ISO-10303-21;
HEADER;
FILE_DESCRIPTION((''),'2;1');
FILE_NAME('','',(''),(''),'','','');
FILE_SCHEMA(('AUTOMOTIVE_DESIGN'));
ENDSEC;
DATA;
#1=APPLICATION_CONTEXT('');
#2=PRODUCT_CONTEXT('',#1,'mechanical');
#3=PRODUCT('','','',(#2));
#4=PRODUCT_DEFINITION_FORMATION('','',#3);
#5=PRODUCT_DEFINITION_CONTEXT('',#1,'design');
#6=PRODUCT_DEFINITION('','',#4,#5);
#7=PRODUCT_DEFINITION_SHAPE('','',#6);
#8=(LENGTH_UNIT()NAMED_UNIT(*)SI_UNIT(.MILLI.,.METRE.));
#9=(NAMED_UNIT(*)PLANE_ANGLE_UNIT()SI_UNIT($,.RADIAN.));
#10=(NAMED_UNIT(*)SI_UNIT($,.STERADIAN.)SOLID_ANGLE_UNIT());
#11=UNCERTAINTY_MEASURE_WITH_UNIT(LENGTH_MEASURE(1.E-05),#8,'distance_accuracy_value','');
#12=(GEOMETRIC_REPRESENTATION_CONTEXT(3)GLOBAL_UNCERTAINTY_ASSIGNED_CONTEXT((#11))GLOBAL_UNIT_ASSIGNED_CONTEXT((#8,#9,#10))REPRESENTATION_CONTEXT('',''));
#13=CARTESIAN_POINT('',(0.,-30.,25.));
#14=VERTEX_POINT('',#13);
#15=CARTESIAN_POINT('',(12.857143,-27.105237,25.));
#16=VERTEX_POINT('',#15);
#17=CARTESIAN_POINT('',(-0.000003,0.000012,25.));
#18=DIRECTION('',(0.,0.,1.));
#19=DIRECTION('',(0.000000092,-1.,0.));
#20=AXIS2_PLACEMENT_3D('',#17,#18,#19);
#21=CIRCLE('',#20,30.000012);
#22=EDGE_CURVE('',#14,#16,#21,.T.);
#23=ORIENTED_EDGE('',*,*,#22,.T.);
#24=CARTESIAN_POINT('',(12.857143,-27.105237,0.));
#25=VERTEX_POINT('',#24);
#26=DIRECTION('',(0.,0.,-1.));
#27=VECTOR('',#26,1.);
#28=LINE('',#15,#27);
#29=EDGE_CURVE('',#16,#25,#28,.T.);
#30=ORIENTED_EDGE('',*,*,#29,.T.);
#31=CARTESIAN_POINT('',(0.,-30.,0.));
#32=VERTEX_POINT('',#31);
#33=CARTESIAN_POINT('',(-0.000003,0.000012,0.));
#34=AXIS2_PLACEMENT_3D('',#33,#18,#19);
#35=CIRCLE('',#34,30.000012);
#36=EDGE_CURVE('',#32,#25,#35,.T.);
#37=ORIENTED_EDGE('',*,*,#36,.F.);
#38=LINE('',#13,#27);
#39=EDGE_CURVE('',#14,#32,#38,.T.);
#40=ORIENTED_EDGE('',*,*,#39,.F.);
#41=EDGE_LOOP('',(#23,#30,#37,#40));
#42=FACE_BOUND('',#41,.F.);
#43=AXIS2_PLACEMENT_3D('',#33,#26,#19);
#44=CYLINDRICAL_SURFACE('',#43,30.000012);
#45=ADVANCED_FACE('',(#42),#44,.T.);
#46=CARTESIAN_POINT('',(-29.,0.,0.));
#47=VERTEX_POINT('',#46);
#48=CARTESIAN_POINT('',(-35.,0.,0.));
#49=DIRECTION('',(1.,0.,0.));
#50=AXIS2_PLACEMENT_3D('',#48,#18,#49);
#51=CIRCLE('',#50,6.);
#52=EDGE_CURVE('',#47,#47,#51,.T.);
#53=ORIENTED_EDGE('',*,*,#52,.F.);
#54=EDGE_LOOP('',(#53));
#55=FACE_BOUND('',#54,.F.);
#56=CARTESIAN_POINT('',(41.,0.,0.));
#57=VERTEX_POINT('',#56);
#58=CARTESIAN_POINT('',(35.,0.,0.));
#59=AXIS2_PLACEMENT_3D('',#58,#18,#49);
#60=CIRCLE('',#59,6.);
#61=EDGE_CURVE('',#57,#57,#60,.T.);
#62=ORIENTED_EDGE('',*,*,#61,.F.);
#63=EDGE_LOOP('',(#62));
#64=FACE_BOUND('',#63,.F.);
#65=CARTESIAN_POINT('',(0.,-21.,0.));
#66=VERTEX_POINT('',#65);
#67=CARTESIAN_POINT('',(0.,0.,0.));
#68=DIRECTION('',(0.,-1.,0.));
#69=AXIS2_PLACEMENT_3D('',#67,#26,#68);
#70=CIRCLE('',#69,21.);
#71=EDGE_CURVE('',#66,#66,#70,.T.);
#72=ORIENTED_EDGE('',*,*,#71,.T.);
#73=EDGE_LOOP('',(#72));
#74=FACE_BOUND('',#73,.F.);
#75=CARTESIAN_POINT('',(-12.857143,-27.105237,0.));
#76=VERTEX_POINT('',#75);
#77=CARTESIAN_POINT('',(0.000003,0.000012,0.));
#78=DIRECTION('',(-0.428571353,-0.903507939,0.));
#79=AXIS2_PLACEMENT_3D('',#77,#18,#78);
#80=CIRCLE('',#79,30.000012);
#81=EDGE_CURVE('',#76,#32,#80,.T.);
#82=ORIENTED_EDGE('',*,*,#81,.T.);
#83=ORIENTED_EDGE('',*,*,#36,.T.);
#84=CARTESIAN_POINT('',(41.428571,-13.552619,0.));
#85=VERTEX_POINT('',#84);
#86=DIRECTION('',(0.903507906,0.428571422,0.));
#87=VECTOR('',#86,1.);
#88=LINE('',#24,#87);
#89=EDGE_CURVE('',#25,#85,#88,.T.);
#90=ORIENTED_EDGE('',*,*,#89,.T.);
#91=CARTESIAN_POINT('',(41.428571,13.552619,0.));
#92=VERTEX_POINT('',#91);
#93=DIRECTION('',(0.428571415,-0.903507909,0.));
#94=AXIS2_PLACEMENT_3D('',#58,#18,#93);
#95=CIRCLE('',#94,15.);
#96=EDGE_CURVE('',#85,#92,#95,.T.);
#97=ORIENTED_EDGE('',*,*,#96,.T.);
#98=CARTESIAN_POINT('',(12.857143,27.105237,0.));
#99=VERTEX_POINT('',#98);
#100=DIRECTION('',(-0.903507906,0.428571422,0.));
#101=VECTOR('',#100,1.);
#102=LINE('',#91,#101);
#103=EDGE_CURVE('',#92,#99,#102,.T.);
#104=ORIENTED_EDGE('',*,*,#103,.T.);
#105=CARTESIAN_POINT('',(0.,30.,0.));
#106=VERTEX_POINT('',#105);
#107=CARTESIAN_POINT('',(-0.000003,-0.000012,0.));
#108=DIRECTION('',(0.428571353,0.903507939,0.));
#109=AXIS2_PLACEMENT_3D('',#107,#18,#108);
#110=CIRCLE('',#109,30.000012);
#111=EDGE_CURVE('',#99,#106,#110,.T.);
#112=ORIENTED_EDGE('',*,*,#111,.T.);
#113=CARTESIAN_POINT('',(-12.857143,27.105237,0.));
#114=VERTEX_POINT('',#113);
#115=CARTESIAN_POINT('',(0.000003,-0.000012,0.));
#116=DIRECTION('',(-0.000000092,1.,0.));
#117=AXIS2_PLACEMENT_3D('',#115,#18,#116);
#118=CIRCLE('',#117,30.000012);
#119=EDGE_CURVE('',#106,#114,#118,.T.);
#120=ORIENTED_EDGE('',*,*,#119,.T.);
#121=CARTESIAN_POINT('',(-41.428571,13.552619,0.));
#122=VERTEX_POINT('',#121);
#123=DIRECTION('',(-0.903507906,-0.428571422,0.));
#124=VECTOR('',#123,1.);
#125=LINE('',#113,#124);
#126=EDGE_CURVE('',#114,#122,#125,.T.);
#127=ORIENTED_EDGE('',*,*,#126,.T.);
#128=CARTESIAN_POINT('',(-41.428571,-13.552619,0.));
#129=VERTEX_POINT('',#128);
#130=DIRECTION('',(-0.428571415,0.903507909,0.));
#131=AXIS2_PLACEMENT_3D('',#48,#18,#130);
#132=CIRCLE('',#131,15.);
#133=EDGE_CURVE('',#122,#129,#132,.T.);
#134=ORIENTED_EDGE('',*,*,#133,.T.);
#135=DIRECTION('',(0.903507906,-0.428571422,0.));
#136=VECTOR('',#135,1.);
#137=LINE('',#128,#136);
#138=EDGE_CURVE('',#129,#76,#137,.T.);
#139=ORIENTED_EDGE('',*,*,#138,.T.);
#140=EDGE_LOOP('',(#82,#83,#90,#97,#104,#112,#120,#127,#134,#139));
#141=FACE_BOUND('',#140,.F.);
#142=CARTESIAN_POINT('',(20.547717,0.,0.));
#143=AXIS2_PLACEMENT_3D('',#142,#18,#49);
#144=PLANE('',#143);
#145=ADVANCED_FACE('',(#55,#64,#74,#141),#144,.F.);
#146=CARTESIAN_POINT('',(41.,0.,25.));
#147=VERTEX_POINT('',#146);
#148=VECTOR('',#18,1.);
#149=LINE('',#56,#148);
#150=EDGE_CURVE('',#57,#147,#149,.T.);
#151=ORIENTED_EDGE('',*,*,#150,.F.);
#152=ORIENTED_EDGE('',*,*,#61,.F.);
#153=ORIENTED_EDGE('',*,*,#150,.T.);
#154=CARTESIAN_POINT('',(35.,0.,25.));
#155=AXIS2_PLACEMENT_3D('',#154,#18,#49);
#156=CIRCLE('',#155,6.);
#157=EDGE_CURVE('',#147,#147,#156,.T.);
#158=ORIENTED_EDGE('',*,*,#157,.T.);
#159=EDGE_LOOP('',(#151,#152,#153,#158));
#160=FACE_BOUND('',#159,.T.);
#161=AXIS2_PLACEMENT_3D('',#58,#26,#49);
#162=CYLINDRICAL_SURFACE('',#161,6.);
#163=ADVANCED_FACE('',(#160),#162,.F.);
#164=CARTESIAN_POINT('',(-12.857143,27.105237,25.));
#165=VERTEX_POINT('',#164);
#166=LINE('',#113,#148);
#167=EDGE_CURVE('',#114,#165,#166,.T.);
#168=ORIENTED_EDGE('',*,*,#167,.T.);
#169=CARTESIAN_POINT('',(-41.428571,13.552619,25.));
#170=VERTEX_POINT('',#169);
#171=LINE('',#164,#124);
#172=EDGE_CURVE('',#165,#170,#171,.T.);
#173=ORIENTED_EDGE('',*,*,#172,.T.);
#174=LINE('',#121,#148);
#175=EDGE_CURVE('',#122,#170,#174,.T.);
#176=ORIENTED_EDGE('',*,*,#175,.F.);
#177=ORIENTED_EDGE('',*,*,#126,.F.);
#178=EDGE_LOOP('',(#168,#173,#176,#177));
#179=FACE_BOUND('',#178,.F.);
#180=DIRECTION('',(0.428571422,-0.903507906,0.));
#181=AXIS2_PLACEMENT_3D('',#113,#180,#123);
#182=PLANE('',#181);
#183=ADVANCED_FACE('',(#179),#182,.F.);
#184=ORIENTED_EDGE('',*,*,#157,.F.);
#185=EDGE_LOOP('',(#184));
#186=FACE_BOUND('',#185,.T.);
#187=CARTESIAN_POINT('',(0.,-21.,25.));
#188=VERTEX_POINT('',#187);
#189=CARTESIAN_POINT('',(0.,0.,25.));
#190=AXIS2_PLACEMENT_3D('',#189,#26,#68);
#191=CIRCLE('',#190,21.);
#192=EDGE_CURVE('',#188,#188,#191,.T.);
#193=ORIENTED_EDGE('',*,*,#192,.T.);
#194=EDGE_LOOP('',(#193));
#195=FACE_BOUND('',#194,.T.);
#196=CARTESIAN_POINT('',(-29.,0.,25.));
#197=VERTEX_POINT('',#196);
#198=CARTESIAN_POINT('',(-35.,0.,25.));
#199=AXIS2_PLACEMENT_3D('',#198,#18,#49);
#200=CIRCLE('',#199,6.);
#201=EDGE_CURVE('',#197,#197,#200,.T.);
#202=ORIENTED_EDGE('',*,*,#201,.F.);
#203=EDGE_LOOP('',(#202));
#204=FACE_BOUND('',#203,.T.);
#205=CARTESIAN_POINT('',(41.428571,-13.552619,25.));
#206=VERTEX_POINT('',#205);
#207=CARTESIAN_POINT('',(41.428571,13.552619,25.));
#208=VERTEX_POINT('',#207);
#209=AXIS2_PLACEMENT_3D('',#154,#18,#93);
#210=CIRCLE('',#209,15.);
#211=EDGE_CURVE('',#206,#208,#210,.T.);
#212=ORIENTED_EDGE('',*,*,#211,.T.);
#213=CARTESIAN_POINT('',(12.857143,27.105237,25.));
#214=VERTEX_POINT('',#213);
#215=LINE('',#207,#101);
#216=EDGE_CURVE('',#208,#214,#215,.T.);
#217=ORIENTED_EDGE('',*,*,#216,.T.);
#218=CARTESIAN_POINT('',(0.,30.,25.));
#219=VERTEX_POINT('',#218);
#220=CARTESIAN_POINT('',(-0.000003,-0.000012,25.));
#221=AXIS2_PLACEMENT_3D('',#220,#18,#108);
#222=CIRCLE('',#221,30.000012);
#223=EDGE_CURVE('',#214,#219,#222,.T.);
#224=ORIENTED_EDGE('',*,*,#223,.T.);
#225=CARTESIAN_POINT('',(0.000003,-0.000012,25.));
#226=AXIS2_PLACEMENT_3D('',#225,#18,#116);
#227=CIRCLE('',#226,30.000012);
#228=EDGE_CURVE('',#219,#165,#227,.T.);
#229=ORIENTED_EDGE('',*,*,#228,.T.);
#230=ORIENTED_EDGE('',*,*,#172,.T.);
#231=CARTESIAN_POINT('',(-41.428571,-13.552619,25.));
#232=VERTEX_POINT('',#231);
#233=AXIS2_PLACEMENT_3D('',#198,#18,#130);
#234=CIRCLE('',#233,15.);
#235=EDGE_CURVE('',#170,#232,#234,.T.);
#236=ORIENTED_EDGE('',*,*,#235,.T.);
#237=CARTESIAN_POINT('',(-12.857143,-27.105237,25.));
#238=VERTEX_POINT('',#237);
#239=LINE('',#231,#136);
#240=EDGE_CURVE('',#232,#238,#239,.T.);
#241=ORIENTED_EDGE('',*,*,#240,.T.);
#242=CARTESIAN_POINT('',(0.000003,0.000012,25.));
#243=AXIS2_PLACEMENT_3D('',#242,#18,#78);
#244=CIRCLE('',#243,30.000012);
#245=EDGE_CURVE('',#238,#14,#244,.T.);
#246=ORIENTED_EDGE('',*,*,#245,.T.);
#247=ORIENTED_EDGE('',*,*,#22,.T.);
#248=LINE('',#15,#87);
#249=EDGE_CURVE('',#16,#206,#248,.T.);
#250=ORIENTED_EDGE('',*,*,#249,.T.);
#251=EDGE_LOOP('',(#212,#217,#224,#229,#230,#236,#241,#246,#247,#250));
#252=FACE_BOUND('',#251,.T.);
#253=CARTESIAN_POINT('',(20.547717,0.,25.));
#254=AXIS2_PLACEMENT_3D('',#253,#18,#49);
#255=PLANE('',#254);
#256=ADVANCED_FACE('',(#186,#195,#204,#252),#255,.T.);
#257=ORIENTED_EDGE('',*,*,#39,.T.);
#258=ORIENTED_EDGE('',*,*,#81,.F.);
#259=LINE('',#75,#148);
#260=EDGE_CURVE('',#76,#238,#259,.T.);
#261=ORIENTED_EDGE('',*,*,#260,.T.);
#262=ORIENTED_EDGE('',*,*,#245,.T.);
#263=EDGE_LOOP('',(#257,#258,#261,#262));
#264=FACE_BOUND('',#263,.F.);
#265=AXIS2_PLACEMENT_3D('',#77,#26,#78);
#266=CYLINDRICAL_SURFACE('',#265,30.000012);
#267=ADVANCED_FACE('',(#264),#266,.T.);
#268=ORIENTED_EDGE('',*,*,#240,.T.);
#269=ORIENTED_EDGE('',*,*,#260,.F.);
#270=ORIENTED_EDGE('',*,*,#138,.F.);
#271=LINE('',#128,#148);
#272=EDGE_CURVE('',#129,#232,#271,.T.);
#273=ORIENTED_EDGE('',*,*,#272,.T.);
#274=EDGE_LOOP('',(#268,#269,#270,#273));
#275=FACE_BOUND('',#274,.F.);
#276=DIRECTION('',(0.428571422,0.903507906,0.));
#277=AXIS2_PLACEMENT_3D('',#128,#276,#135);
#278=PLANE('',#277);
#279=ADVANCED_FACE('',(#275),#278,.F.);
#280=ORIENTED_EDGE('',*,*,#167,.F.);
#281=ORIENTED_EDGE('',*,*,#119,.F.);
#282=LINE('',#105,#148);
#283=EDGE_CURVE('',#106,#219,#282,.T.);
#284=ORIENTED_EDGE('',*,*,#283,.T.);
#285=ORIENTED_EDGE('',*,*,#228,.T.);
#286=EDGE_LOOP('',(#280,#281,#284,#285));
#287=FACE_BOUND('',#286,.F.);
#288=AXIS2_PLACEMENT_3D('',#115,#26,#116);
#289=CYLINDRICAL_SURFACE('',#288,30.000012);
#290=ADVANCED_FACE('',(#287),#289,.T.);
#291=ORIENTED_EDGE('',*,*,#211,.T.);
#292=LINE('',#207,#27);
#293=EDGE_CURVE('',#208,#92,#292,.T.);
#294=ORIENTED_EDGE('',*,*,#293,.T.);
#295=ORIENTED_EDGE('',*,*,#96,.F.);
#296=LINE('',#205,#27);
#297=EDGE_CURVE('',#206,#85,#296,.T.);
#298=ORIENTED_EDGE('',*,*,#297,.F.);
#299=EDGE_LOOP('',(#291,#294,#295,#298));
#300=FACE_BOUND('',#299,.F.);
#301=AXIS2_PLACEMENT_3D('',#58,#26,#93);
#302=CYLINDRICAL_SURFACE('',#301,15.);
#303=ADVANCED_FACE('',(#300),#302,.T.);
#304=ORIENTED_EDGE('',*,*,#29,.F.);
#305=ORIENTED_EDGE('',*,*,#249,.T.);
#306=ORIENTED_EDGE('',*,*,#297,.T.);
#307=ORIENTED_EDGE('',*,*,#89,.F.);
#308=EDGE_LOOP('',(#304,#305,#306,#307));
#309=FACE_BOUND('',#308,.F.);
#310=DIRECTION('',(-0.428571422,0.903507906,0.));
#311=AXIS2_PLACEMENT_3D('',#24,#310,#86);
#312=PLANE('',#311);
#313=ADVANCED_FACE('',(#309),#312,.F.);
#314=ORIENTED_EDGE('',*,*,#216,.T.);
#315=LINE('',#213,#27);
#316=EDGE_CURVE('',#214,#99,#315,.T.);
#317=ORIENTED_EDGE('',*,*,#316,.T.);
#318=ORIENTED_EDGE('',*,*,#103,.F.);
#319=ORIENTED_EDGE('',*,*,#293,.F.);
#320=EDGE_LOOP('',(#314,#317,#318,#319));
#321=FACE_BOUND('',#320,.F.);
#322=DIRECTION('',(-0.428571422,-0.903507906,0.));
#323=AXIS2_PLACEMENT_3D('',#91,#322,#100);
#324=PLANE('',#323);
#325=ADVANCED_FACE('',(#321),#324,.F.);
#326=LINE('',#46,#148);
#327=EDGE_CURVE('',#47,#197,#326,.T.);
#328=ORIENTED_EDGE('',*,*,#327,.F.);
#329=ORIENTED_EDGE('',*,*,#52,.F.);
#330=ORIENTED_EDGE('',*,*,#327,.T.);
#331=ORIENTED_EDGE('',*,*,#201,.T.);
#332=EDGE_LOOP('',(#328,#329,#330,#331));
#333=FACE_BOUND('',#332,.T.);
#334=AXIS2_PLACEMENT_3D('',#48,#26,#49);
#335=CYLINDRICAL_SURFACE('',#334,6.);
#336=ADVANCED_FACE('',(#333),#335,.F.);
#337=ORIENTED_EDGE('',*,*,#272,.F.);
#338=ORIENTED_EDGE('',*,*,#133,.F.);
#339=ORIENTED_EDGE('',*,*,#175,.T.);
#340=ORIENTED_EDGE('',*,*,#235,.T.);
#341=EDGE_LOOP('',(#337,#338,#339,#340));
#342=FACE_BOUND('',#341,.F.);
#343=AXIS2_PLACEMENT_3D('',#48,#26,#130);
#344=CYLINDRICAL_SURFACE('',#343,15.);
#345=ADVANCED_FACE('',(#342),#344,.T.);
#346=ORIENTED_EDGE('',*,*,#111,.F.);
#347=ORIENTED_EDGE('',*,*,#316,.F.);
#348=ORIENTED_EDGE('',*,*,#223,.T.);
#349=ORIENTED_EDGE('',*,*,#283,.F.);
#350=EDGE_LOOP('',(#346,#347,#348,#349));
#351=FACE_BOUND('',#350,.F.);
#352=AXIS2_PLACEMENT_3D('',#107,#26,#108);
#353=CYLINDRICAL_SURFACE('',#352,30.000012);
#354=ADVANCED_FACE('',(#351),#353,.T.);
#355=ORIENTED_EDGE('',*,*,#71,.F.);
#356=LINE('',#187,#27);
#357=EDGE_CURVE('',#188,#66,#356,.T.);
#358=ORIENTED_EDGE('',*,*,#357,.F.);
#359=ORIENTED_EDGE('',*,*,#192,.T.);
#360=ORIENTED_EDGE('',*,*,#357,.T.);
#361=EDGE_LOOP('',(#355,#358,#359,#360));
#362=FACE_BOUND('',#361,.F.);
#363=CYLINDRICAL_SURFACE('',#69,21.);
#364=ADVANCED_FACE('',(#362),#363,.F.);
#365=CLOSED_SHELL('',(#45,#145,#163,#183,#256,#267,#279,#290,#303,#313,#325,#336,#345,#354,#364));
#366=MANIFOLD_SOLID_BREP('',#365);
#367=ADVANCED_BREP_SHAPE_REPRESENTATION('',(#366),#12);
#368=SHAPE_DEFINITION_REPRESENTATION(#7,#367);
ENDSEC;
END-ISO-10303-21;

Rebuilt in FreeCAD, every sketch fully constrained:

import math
import FreeCAD as App
import Part
import Sketcher

V = App.Vector

doc = App.newDocument("Part")
body = doc.addObject("PartDesign::Body", "Body")

sketch1 = body.newObject("Sketcher::SketchObject", "Sketch")
sketch1.AttachmentSupport = (doc.getObject("XY_Plane"), [""])
sketch1.MapMode = "FlatFace"
sketch1.addGeometry([
    Part.ArcOfCircle(Part.Circle(V(-0.000003, -0.000012, 0), V(0, 0, 1), 30.000012), math.radians(64.623071), math.radians(89.999995)),
    Part.ArcOfCircle(Part.Circle(V(0.000003, -0.000012, 0), V(0, 0, 1), 30.000012), math.radians(90.000005), math.radians(115.376929)),
    Part.LineSegment(V(-12.857143, 27.105237, 0), V(-41.428571, 13.552619, 0)),
    Part.ArcOfCircle(Part.Circle(V(-35, 0, 0), V(0, 0, 1), 15), math.radians(115.376933), math.radians(244.623067)),
    Part.LineSegment(V(-41.428571, -13.552619, 0), V(-12.857143, -27.105237, 0)),
    Part.ArcOfCircle(Part.Circle(V(0.000003, 0.000012, 0), V(0, 0, 1), 30.000012), math.radians(-115.376929), math.radians(-90.000005)),
    Part.ArcOfCircle(Part.Circle(V(-0.000003, 0.000012, 0), V(0, 0, 1), 30.000012), math.radians(-89.999995), math.radians(-64.623071)),
    Part.LineSegment(V(12.857143, -27.105237, 0), V(41.428571, -13.552619, 0)),
    Part.ArcOfCircle(Part.Circle(V(35, 0, 0), V(0, 0, 1), 15), math.radians(-64.623067), math.radians(64.623067)),
    Part.LineSegment(V(41.428571, 13.552619, 0), V(12.857143, 27.105237, 0)),
    Part.Circle(V(-35, 0, 0), V(0, 0, 1), 6),
    Part.Circle(V(0, 0, 0), V(0, 0, 1), 21),
    Part.Circle(V(35, 0, 0), V(0, 0, 1), 6),
], False)
sketch1.addConstraint([
    Sketcher.Constraint("Tangent", 0, 2, 1, 1),
    Sketcher.Constraint("Tangent", 1, 2, 2, 1),
    Sketcher.Constraint("Tangent", 2, 2, 3, 1),
    Sketcher.Constraint("Tangent", 3, 2, 4, 1),
    Sketcher.Constraint("Tangent", 4, 2, 5, 1),
    Sketcher.Constraint("Tangent", 5, 2, 6, 1),
    Sketcher.Constraint("Tangent", 6, 2, 7, 1),
    Sketcher.Constraint("Tangent", 7, 2, 8, 1),
    Sketcher.Constraint("Tangent", 8, 2, 9, 1),
    Sketcher.Constraint("Tangent", 9, 2, 0, 1),
    Sketcher.Constraint("Coincident", 11, 3, -1, 1),
    Sketcher.Constraint("Coincident", 10, 3, 3, 3),
    Sketcher.Constraint("Coincident", 12, 3, 8, 3),
    Sketcher.Constraint("Equal", 0, 1),
    Sketcher.Constraint("Equal", 1, 5),
    Sketcher.Constraint("Equal", 5, 6),
    Sketcher.Constraint("Equal", 3, 8),
    Sketcher.Constraint("Equal", 10, 12),
    Sketcher.Constraint("Symmetric", 0, 3, 5, 3, -1, 1),
    Sketcher.Constraint("Symmetric", 3, 3, 8, 3, -1, 1),
    Sketcher.Constraint("Symmetric", 4, 2, 6, 2, -2),
    Sketcher.Constraint("PointOnObject", 0, 2, -2),
    Sketcher.Constraint("PointOnObject", 5, 2, -2),
    Sketcher.Constraint("Diameter", 10, 12.0),
    Sketcher.Constraint("Diameter", 11, 42.0),
    Sketcher.Constraint("Radius", 3, 15.0),
    Sketcher.Constraint("DistanceX", 3, 3, -1, 1, 35.0),
    Sketcher.Constraint("DistanceY", -1, 1, 0, 2, 30.0),
    Sketcher.Constraint("Radius", 0, 30.000012),
])
pad1 = body.newObject("PartDesign::Pad", "Pad")
pad1.Profile = sketch1
pad1.Length = 10

sketch2 = body.newObject("Sketcher::SketchObject", "Sketch001")
sketch2.AttachmentSupport = (doc.getObject("XY_Plane"), [""])
sketch2.MapMode = "FlatFace"
sketch2.addGeometry([
    Part.ArcOfCircle(Part.Circle(V(-0.000003, -0.000012, 0), V(0, 0, 1), 30.000012), math.radians(64.623071), math.radians(89.999995)),
    Part.ArcOfCircle(Part.Circle(V(0.000003, -0.000012, 0), V(0, 0, 1), 30.000012), math.radians(90.000005), math.radians(115.376929)),
    Part.LineSegment(V(-12.857143, 27.105237, 0), V(-41.428571, 13.552619, 0)),
    Part.ArcOfCircle(Part.Circle(V(-35, 0, 0), V(0, 0, 1), 15), math.radians(115.376933), math.radians(244.623067)),
    Part.LineSegment(V(-41.428571, -13.552619, 0), V(-12.857143, -27.105237, 0)),
    Part.ArcOfCircle(Part.Circle(V(0.000003, 0.000012, 0), V(0, 0, 1), 30.000012), math.radians(-115.376929), math.radians(-90.000005)),
    Part.ArcOfCircle(Part.Circle(V(-0.000003, 0.000012, 0), V(0, 0, 1), 30.000012), math.radians(-89.999995), math.radians(-64.623071)),
    Part.LineSegment(V(12.857143, -27.105237, 0), V(41.428571, -13.552619, 0)),
    Part.ArcOfCircle(Part.Circle(V(35, 0, 0), V(0, 0, 1), 15), math.radians(-64.623067), math.radians(64.623067)),
    Part.LineSegment(V(41.428571, 13.552619, 0), V(12.857143, 27.105237, 0)),
    Part.Circle(V(-35, 0, 0), V(0, 0, 1), 6),
    Part.Circle(V(0, 0, 0), V(0, 0, 1), 21),
    Part.Circle(V(35, 0, 0), V(0, 0, 1), 6),
], False)
sketch2.addConstraint([
    Sketcher.Constraint("Tangent", 0, 2, 1, 1),
    Sketcher.Constraint("Tangent", 1, 2, 2, 1),
    Sketcher.Constraint("Tangent", 2, 2, 3, 1),
    Sketcher.Constraint("Tangent", 3, 2, 4, 1),
    Sketcher.Constraint("Tangent", 4, 2, 5, 1),
    Sketcher.Constraint("Tangent", 5, 2, 6, 1),
    Sketcher.Constraint("Tangent", 6, 2, 7, 1),
    Sketcher.Constraint("Tangent", 7, 2, 8, 1),
    Sketcher.Constraint("Tangent", 8, 2, 9, 1),
    Sketcher.Constraint("Tangent", 9, 2, 0, 1),
    Sketcher.Constraint("Coincident", 11, 3, -1, 1),
    Sketcher.Constraint("Coincident", 10, 3, 3, 3),
    Sketcher.Constraint("Coincident", 12, 3, 8, 3),
    Sketcher.Constraint("Equal", 0, 1),
    Sketcher.Constraint("Equal", 1, 5),
    Sketcher.Constraint("Equal", 5, 6),
    Sketcher.Constraint("Equal", 3, 8),
    Sketcher.Constraint("Equal", 10, 12),
    Sketcher.Constraint("Symmetric", 0, 3, 5, 3, -1, 1),
    Sketcher.Constraint("Symmetric", 3, 3, 8, 3, -1, 1),
    Sketcher.Constraint("Symmetric", 4, 2, 6, 2, -2),
    Sketcher.Constraint("PointOnObject", 0, 2, -2),
    Sketcher.Constraint("PointOnObject", 5, 2, -2),
    Sketcher.Constraint("Diameter", 10, 12.0),
    Sketcher.Constraint("Diameter", 11, 42.0),
    Sketcher.Constraint("Radius", 3, 15.0),
    Sketcher.Constraint("DistanceX", 3, 3, -1, 1, 35.0),
    Sketcher.Constraint("DistanceY", -1, 1, 0, 2, 30.0),
    Sketcher.Constraint("Radius", 0, 30.000012),
])
pad2 = body.newObject("PartDesign::Pad", "Pad001")
pad2.Profile = sketch2
pad2.Length = 25

doc.recompute()
